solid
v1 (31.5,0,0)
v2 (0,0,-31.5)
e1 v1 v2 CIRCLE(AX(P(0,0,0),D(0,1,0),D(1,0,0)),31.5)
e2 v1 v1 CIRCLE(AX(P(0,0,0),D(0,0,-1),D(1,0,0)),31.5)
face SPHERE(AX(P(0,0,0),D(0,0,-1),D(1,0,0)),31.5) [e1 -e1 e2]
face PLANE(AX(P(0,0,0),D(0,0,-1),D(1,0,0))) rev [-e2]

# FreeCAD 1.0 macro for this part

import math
import FreeCAD as App
import Part
import Sketcher
from FreeCAD import Vector

doc = App.newDocument("Part")
params = doc.addObject("Spreadsheet::Sheet", "Params")
for row, (alias, value) in enumerate([
    ("sketch1_radius", "31.5 mm"),
    ("revolution_angle", "360 deg"),
], start=1):
    params.set(f"A{row}", alias)
    params.set(f"B{row}", "=" + value)
    params.setAlias(f"B{row}", alias)

body = doc.addObject("PartDesign::Body", "Body")

sketch1 = doc.addObject("Sketcher::SketchObject", "Sketch")
body.addObject(sketch1)
sketch1.AttachmentSupport = (doc.XZ_Plane, [""])
sketch1.MapMode = "FlatFace"
sketch1.addGeometry([
    Part.LineSegment(Vector(0, 0, 0), Vector(32, 0, 0)),
    Part.ArcOfCircle(Part.Circle(Vector(0, 0, 0), Vector(0, 0, 1), 32), math.radians(-90), math.radians(0)),
    Part.LineSegment(Vector(0, -32, 0), Vector(0, 0, 0)),
], False)
sketch1.addConstraint([
    Sketcher.Constraint("Coincident", 0, 2, 1, 2),
    Sketcher.Constraint("Coincident", 1, 1, 2, 1),
    Sketcher.Constraint("Coincident", 2, 2, 0, 1),
    Sketcher.Constraint("Horizontal", 0),
    Sketcher.Constraint("Vertical", 2),
    Sketcher.Constraint("Coincident", 1, 3, -1, 1),
    Sketcher.Constraint("Coincident", 2, 2, -1, 1),
    Sketcher.Constraint("Radius", 1, 31.5),
])
sketch1.setExpression("Constraints[7]", "Params.sketch1_radius")
revolution = doc.addObject("PartDesign::Revolution", "Revolution")
body.addObject(revolution)
revolution.Profile = sketch1
revolution.ReferenceAxis = (sketch1, ["V_Axis"])
revolution.setExpression("Angle", "Params.revolution_angle")

doc.recompute()
